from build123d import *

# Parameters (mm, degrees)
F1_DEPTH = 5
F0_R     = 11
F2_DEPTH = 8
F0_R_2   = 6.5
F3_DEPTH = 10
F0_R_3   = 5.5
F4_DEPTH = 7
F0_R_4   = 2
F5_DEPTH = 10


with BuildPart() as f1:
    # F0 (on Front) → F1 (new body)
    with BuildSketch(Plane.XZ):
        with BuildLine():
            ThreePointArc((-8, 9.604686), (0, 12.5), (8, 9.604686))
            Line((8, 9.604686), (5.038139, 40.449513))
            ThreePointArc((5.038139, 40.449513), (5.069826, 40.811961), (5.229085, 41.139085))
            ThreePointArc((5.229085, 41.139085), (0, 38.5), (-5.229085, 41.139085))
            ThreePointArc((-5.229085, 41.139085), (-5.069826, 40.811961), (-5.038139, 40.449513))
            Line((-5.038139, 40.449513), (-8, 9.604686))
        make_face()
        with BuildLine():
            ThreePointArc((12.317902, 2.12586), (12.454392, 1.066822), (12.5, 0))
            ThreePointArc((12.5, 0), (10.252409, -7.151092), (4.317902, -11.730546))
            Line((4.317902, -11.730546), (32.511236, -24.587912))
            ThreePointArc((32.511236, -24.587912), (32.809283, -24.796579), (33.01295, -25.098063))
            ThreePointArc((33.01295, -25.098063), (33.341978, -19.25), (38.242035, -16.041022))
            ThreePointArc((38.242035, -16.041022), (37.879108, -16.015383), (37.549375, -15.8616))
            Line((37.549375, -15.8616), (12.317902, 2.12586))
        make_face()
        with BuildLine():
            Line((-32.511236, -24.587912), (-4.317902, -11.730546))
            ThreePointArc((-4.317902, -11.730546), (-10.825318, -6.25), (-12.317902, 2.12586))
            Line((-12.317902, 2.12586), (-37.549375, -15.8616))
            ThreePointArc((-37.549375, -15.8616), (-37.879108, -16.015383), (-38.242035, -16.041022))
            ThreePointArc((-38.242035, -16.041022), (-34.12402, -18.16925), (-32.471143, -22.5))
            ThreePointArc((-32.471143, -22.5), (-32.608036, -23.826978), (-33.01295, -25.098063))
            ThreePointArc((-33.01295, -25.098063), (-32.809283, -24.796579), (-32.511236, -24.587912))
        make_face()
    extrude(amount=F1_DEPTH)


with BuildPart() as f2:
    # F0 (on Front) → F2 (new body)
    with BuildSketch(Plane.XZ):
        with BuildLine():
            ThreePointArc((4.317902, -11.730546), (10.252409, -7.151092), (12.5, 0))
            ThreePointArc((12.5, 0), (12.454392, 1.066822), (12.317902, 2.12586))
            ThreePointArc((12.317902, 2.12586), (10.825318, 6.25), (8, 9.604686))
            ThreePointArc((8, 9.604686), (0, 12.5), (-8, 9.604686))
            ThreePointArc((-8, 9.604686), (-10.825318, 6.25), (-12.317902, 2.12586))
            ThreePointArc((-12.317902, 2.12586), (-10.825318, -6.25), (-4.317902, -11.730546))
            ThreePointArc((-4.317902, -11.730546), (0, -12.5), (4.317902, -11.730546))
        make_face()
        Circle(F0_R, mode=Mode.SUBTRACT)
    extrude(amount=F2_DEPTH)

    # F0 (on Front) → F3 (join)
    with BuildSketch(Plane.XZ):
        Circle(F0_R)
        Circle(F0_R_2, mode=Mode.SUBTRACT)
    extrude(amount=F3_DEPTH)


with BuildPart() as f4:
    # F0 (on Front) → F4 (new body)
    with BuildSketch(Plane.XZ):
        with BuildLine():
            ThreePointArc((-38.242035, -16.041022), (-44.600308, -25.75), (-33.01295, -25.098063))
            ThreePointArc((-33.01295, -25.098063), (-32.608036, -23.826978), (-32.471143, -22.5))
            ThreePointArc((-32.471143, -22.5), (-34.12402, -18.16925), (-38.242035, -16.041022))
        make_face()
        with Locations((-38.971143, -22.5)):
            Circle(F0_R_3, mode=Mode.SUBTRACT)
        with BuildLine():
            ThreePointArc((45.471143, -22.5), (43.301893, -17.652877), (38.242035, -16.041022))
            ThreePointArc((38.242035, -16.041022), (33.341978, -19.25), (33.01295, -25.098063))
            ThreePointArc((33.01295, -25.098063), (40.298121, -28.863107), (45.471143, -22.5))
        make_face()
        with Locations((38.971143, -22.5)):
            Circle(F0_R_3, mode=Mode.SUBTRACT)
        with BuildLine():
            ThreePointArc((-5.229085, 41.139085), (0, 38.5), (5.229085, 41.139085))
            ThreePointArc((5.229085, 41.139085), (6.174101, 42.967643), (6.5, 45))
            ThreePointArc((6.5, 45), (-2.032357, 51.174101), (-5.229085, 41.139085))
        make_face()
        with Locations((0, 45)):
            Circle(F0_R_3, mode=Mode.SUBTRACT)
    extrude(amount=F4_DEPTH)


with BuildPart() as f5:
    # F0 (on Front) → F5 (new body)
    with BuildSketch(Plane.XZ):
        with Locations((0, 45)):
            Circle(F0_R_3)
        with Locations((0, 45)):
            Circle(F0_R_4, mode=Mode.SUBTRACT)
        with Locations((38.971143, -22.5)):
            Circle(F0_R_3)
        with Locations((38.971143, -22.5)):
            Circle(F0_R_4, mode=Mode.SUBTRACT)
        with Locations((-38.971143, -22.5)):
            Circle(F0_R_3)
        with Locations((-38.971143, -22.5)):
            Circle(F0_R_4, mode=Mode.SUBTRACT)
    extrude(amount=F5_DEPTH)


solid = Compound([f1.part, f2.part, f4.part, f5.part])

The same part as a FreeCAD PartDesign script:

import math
import FreeCAD as App
import Part
import Sketcher
from FreeCAD import Vector
Q = App.Units.Quantity

doc = App.newDocument("Part")
body = doc.addObject("PartDesign::Body", "Body")
body.AllowCompound = True

# Sketch on XZ plane
sketch1 = body.newObject("Sketcher::SketchObject", "Sketch")
sketch1.AttachmentSupport = (doc.getObject("XZ_Plane"), [""])
sketch1.MapMode = "FlatFace"
sketch1.addGeometry([
    Part.ArcOfCircle(Part.Circle(Vector(0, 0.000001, 0), Vector(0, 0, 1), 12.499999), math.radians(50.208176), math.radians(129.791824)),  # 0
    Part.LineSegment(Vector(8, 9.604686, 0), Vector(5.038139, 40.449513, 0)),  # 1
    Part.ArcOfCircle(Part.Circle(Vector(6.033567, 40.545097, 0), Vector(0, 0, 1), 1.000007), math.radians(143.559748), math.radians(185.484889)),  # 2
    Part.ArcOfCircle(Part.Circle(Vector(0, 44.999999, 0), Vector(0, 0, 1), 6.499999), math.radians(-143.559559), math.radians(-36.440441)),  # 3
    Part.ArcOfCircle(Part.Circle(Vector(-6.033567, 40.545097, 0), Vector(0, 0, 1), 1.000007), math.radians(-5.484889), math.radians(36.440252)),  # 4
    Part.LineSegment(Vector(-5.038139, 40.449513, 0), Vector(-8, 9.604686, 0)),  # 5
    Part.ArcOfCircle(Part.Circle(Vector(-0.000065, -0.000008, 0), Vector(0, 0, 1), 12.500065), math.radians(0.000036), math.radians(9.791804)),  # 6
    Part.ArcOfCircle(Part.Circle(Vector(0.000003, -0.000001, 0), Vector(0, 0, 1), 12.499997), math.radians(-69.79183), math.radians(0.000006)),  # 7
    Part.LineSegment(Vector(4.317902, -11.730546, 0), Vector(32.511236, -24.587912, 0)),  # 8
    Part.ArcOfCircle(Part.Circle(Vector(32.096302, -25.497768, 0), Vector(0, 0, 1), 1.000004), math.radians(23.55962), math.radians(65.484929)),  # 9
    Part.ArcOfCircle(Part.Circle(Vector(38.971142, -22.5, 0), Vector(0, 0, 1), 6.499999), math.radians(96.440444), math.radians(203.559556)),  # 10
    Part.ArcOfCircle(Part.Circle(Vector(38.129865, -15.047335, 0), Vector(0, 0, 1), 0.999998), math.radians(-125.48508), math.radians(-83.559566)),  # 11
    Part.LineSegment(Vector(37.549375, -15.8616, 0), Vector(12.317902, 2.12586, 0)),  # 12
    Part.LineSegment(Vector(-32.511236, -24.587912, 0), Vector(-4.317902, -11.730546, 0)),  # 13
    Part.ArcOfCircle(Part.Circle(Vector(-0.000003, -0.000002, 0), Vector(0, 0, 1), 12.499997), math.radians(170.20817), math.radians(249.791831)),  # 14
    Part.LineSegment(Vector(-12.317902, 2.12586, 0), Vector(-37.549375, -15.8616, 0)),  # 15
    Part.ArcOfCircle(Part.Circle(Vector(-38.129865, -15.047335, 0), Vector(0, 0, 1), 0.999998), math.radians(-96.440434), math.radians(-54.51492)),  # 16
    Part.ArcOfCircle(Part.Circle(Vector(-38.971143, -22.5, 0), Vector(0, 0, 1), 6.5), math.radians(0.000003), math.radians(83.559552)),  # 17
    Part.ArcOfCircle(Part.Circle(Vector(-38.97113, -22.500002, 0), Vector(0, 0, 1), 6.499987), math.radians(-23.559584), math.radians(0.000017)),  # 18
    Part.ArcOfCircle(Part.Circle(Vector(-32.096302, -25.497768, 0), Vector(0, 0, 1), 1.000004), math.radians(114.515071), math.radians(156.44038)),  # 19
], False)
sketch1.addConstraint([
    Sketcher.Constraint("Coincident", 0, 1, 1, 1),
    Sketcher.Constraint("Coincident", 1, 2, 2, 2),
    Sketcher.Constraint("Coincident", 2, 1, 3, 2),
    Sketcher.Constraint("Coincident", 3, 1, 4, 2),
    Sketcher.Constraint("Coincident", 4, 1, 5, 1),
    Sketcher.Constraint("Coincident", 5, 2, 0, 2),
    Sketcher.Constraint("Coincident", 6, 1, 7, 2),
    Sketcher.Constraint("Coincident", 7, 1, 8, 1),
    Sketcher.Constraint("Coincident", 8, 2, 9, 2),
    Sketcher.Constraint("Coincident", 9, 1, 10, 2),
    Sketcher.Constraint("Coincident", 10, 1, 11, 2),
    Sketcher.Constraint("Coincident", 11, 1, 12, 1),
    Sketcher.Constraint("Coincident", 12, 2, 6, 2),
    Sketcher.Constraint("Coincident", 13, 2, 14, 2),
    Sketcher.Constraint("Coincident", 14, 1, 15, 1),
    Sketcher.Constraint("Coincident", 15, 2, 16, 2),
    Sketcher.Constraint("Coincident", 16, 1, 17, 2),
    Sketcher.Constraint("Coincident", 17, 1, 18, 2),
    Sketcher.Constraint("Coincident", 18, 1, 19, 2),
    Sketcher.Constraint("Coincident", 19, 1, 13, 1),
    Sketcher.Constraint("Coincident", 0, 3, -1, 1),
    Sketcher.Constraint("Coincident", 7, 3, -1, 1),
    Sketcher.Constraint("Coincident", 14, 3, -1, 1),
    Sketcher.Constraint("PointOnObject", 3, 3, -2),
    Sketcher.Constraint("PointOnObject", 6, 1, -1),
    Sketcher.Constraint("Radius", 11, Q("0.999998 mm")),
    Sketcher.Constraint("Radius", 16, Q("0.999998 mm")),
    Sketcher.Constraint("Radius", 0, Q("12.499999 mm")),
    Sketcher.Constraint("Radius", 3, Q("6.499999 mm")),
    Sketcher.Constraint("Radius", 10, Q("6.499999 mm")),
    Sketcher.Constraint("Radius", 17, Q("6.5 mm")),
    Sketcher.Constraint("DistanceY", -1, 1, 3, 3, Q("44.999999 mm")),
    Sketcher.Constraint("DistanceX", -1, 1, 0, 1, Q("8 mm")),
    Sketcher.Constraint("DistanceX", 5, 2, -1, 1, Q("8 mm")),
    Sketcher.Constraint("DistanceY", 10, 3, -1, 1, Q("22.5 mm")),
    Sketcher.Constraint("DistanceY", 17, 3, -1, 1, Q("22.5 mm")),
    Sketcher.Constraint("DistanceY", 18, 3, -1, 1, Q("22.500002 mm")),
    Sketcher.Constraint("DistanceX", -1, 1, 6, 1, Q("12.5 mm")),
    Sketcher.Constraint("DistanceY", 17, 1, -1, 1, Q("22.5 mm")),
    Sketcher.Constraint("Radius", 2, Q("1.000007 mm")),
    Sketcher.Constraint("Radius", 4, Q("1.000007 mm")),
    Sketcher.Constraint("Radius", 6, Q("12.500065 mm")),
    Sketcher.Constraint("Radius", 9, Q("1.000004 mm")),
    Sketcher.Constraint("Radius", 14, Q("12.499997 mm")),
    Sketcher.Constraint("Radius", 18, Q("6.499987 mm")),
    Sketcher.Constraint("Radius", 19, Q("1.000004 mm")),
    Sketcher.Constraint("DistanceX", -1, 1, 9, 3, Q("32.096302 mm")),
    Sketcher.Constraint("DistanceX", 19, 3, -1, 1, Q("32.096302 mm")),
    Sketcher.Constraint("DistanceY", 11, 1, -1, 1, Q("15.8616 mm")),
    Sketcher.Constraint("DistanceY", 15, 2, -1, 1, Q("15.8616 mm")),
    Sketcher.Constraint("DistanceY", 7, 3, 2, 3, Q("40.545098 mm")),
    Sketcher.Constraint("DistanceY", 7, 3, 4, 3, Q("40.545098 mm")),
    Sketcher.Constraint("DistanceX", 16, 3, 6, 3, Q("38.1298 mm")),
    Sketcher.Constraint("DistanceY", 0, 1, 2, 1, Q("31.534399 mm")),
    Sketcher.Constraint("DistanceX", 7, 3, 7, 1, Q("4.317899 mm")),
    Sketcher.Constraint("DistanceX", 8, 2, 10, 1, Q("5.730799 mm")),
    Sketcher.Constraint("DistanceX", 0, 1, 12, 2, Q("4.317902 mm")),
    Sketcher.Constraint("DistanceX", 13, 2, 14, 3, Q("4.317899 mm")),
    Sketcher.Constraint("DistanceX", 14, 1, 14, 3, Q("12.317899 mm")),
    Sketcher.Constraint("DistanceX", 18, 3, -1, 1, Q("38.97113 mm")),
    Sketcher.Constraint("DistanceX", -1, 1, 1, 2, Q("5.038139 mm")),
    Sketcher.Constraint("DistanceX", 4, 1, -1, 1, Q("5.038139 mm")),
    Sketcher.Constraint("DistanceY", 8, 2, -1, 1, Q("24.587912 mm")),
    Sketcher.Constraint("DistanceX", -1, 1, 9, 1, Q("33.01295 mm")),
    Sketcher.Constraint("DistanceY", -1, 1, 12, 2, Q("2.12586 mm")),
    Sketcher.Constraint("DistanceY", 16, 1, -1, 1, Q("16.041022 mm")),
    Sketcher.Constraint("DistanceX", 18, 1, -1, 1, Q("33.01295 mm")),
    Sketcher.Constraint("DistanceY", 19, 1, -1, 1, Q("24.587912 mm")),
    Sketcher.Constraint("DistanceY", 9, 3, 0, 3, Q("25.497769 mm")),
    Sketcher.Constraint("DistanceX", 6, 3, 11, 3, Q("38.12993 mm")),
    Sketcher.Constraint("DistanceY", 4, 3, 3, 1, Q("0.593988 mm")),
])
pad1 = body.newObject("PartDesign::Pad", "Pad")
pad1.Profile = sketch1
pad1.Length = 5
body2 = doc.addObject("PartDesign::Body", "Body001")

# Sketch on XZ plane
sketch2 = body2.newObject("Sketcher::SketchObject", "Sketch001")
sketch2.AttachmentSupport = (doc.getObject("XZ_Plane001"), [""])
sketch2.MapMode = "FlatFace"
sketch2.addGeometry([
    Part.ArcOfCircle(Part.Circle(Vector(0.000003, -0.000001, 0), Vector(0, 0, 1), 12.499997), math.radians(-69.79183), math.radians(0.000006)),  # 0
    Part.ArcOfCircle(Part.Circle(Vector(-0.000065, -0.000008, 0), Vector(0, 0, 1), 12.500065), math.radians(0.000036), math.radians(9.791804)),  # 1
    Part.ArcOfCircle(Part.Circle(Vector(0.00001, 0.000006, 0), Vector(0, 0, 1), 12.499989), math.radians(9.7918), math.radians(50.208197)),  # 2
    Part.ArcOfCircle(Part.Circle(Vector(0, 0.000001, 0), Vector(0, 0, 1), 12.499999), math.radians(50.208176), math.radians(129.791824)),  # 3
    Part.ArcOfCircle(Part.Circle(Vector(-0.00001, 0.000006, 0), Vector(0, 0, 1), 12.499989), math.radians(129.791803), math.radians(170.2082)),  # 4
    Part.ArcOfCircle(Part.Circle(Vector(-0.000003, -0.000002, 0), Vector(0, 0, 1), 12.499997), math.radians(170.20817), math.radians(249.791831)),  # 5
    Part.ArcOfCircle(Part.Circle(Vector(0, -0.000008, 0), Vector(0, 0, 1), 12.499992), math.radians(-110.208193), math.radians(-69.791807)),  # 6
    Part.Circle(Vector(0, 0, 0), Vector(0, 0, 1), 11),  # 7
], False)
sketch2.addConstraint([
    Sketcher.Constraint("Coincident", 0, 2, 1, 1),
    Sketcher.Constraint("Coincident", 1, 2, 2, 1),
    Sketcher.Constraint("Coincident", 2, 2, 3, 1),
    Sketcher.Constraint("Coincident", 3, 2, 4, 1),
    Sketcher.Constraint("Coincident", 4, 2, 5, 1),
    Sketcher.Constraint("Coincident", 5, 2, 6, 1),
    Sketcher.Constraint("Coincident", 6, 2, 0, 1),
    Sketcher.Constraint("Coincident", 0, 3, -1, 1),
    Sketcher.Constraint("Coincident", 3, 3, -1, 1),
    Sketcher.Constraint("Coincident", 5, 3, -1, 1),
    Sketcher.Constraint("Coincident", 6, 3, -1, 1),
    Sketcher.Constraint("Coincident", 7, 3, -1, 1),
    Sketcher.Constraint("PointOnObject", 0, 2, -1),
    Sketcher.Constraint("Diameter", 7, Q("22 mm")),
    Sketcher.Constraint("Radius", 3, Q("12.499999 mm")),
    Sketcher.Constraint("DistanceX", -1, 1, 2, 2, Q("8 mm")),
    Sketcher.Constraint("DistanceX", 3, 2, -1, 1, Q("8 mm")),
    Sketcher.Constraint("DistanceX", -1, 1, 0, 2, Q("12.5 mm")),
    Sketcher.Constraint("Radius", 2, Q("12.499989 mm")),
    Sketcher.Constraint("Radius", 4, Q("12.499989 mm")),
    Sketcher.Constraint("Radius", 1, Q("12.500065 mm")),
    Sketcher.Constraint("DistanceX", -1, 1, 1, 2, Q("12.317902 mm")),
    Sketcher.Constraint("DistanceX", 5, 2, -1, 1, Q("4.317902 mm")),
    Sketcher.Constraint("DistanceX", -1, 1, 6, 2, Q("4.317902 mm")),
    Sketcher.Constraint("DistanceX", 4, 2, 5, 3, Q("12.317899 mm")),
    Sketcher.Constraint("DistanceY", -1, 1, 1, 2, Q("2.12586 mm")),
])
pad2 = body2.newObject("PartDesign::Pad", "Pad001")
pad2.Profile = sketch2
pad2.Length = 8

# Sketch on XZ plane
sketch3 = body2.newObject("Sketcher::SketchObject", "Sketch002")
sketch3.AttachmentSupport = (doc.getObject("XZ_Plane001"), [""])
sketch3.MapMode = "FlatFace"
sketch3.addGeometry([
    Part.Circle(Vector(0, 0, 0), Vector(0, 0, 1), 11),
    Part.Circle(Vector(0, 0, 0), Vector(0, 0, 1), 6),
], False)
sketch3.addConstraint([
    Sketcher.Constraint("Coincident", 0, 3, -1, 1),
    Sketcher.Constraint("Coincident", 1, 3, -1, 1),
    Sketcher.Constraint("Diameter", 0, Q("22 mm")),
    Sketcher.Constraint("Diameter", 1, Q("13 mm")),
])
pad3 = body2.newObject("PartDesign::Pad", "Pad002")
pad3.Profile = sketch3
pad3.Length = 10
body3 = doc.addObject("PartDesign::Body", "Body002")
body3.AllowCompound = True

# Sketch on XZ plane
sketch4 = body3.newObject("Sketcher::SketchObject", "Sketch003")
sketch4.AttachmentSupport = (doc.getObject("XZ_Plane002"), [""])
sketch4.MapMode = "FlatFace"
sketch4.addGeometry([
    Part.ArcOfCircle(Part.Circle(Vector(-38.971143, -22.5, 0), Vector(0, 0, 1), 6.5), math.radians(83.55955), math.radians(336.440449)),  # 0
    Part.ArcOfCircle(Part.Circle(Vector(-38.97113, -22.500002, 0), Vector(0, 0, 1), 6.499987), math.radians(-23.559584), math.radians(0.000017)),  # 1
    Part.ArcOfCircle(Part.Circle(Vector(-38.971143, -22.5, 0), Vector(0, 0, 1), 6.5), math.radians(0.000003), math.radians(83.559552)),  # 2
    Part.Circle(Vector(-38.971143, -22.5, 0), Vector(0, 0, 1), 5.5),  # 3
    Part.ArcOfCircle(Part.Circle(Vector(38.971143, -22.5, 0), Vector(0, 0, 1), 6.5), math.radians(0.000002), math.radians(96.440449)),  # 4
    Part.ArcOfCircle(Part.Circle(Vector(38.971142, -22.5, 0), Vector(0, 0, 1), 6.499999), math.radians(96.440444), math.radians(203.559556)),  # 5
    Part.ArcOfCircle(Part.Circle(Vector(38.971143, -22.5, 0), Vector(0, 0, 1), 6.5), math.radians(-156.440452), math.radians(0.000003)),  # 6
    Part.Circle(Vector(38.971143, -22.5, 0), Vector(0, 0, 1), 5.5),  # 7
    Part.ArcOfCircle(Part.Circle(Vector(0, 44.999999, 0), Vector(0, 0, 1), 6.499999), math.radians(-143.559559), math.radians(-36.440441)),  # 8
    Part.ArcOfCircle(Part.Circle(Vector(0.000001, 45, 0), Vector(0, 0, 1), 6.499999), math.radians(-36.440458), math.radians(-0.000002)),  # 9
    Part.ArcOfCircle(Part.Circle(Vector(0, 45, 0), Vector(0, 0, 1), 6.5), math.radians(-0.000001), math.radians(216.440448)),  # 10
    Part.Circle(Vector(0, 45, 0), Vector(0, 0, 1), 5.5),  # 11
], False)
sketch4.addConstraint([
    Sketcher.Constraint("Coincident", 0, 2, 1, 1),
    Sketcher.Constraint("Coincident", 1, 2, 2, 1),
    Sketcher.Constraint("Coincident", 2, 2, 0, 1),
    Sketcher.Constraint("Coincident", 4, 2, 5, 1),
    Sketcher.Constraint("Coincident", 5, 2, 6, 1),
    Sketcher.Constraint("Coincident", 6, 2, 4, 1),
    Sketcher.Constraint("Coincident", 8, 2, 9, 1),
    Sketcher.Constraint("Coincident", 9, 2, 10, 1),
    Sketcher.Constraint("Coincident", 10, 2, 8, 1),
    Sketcher.Constraint("Coincident", 2, 3, 0, 3),
    Sketcher.Constraint("Coincident", 3, 3, 0, 3),
    Sketcher.Constraint("Coincident", 5, 3, 4, 3),
    Sketcher.Constraint("Coincident", 7, 3, 4, 3),
    Sketcher.Constraint("Coincident", 9, 3, 8, 3),
    Sketcher.Constraint("Coincident", 11, 3, 8, 3),
    Sketcher.Constraint("PointOnObject", 8, 3, -2),
    Sketcher.Constraint("PointOnObject", 10, 3, -2),
    Sketcher.Constraint("Diameter", 3, Q("11 mm")),
    Sketcher.Constraint("Diameter", 7, Q("11 mm")),
    Sketcher.Constraint("Diameter", 11, Q("11 mm")),
    Sketcher.Constraint("Radius", 0, Q("6.5 mm")),
    Sketcher.Constraint("Radius", 4, Q("6.5 mm")),
    Sketcher.Constraint("Radius", 6, Q("6.5 mm")),
    Sketcher.Constraint("Radius", 8, Q("6.499999 mm")),
    Sketcher.Constraint("DistanceY", -1, 1, 8, 3, Q("44.999999 mm")),
    Sketcher.Constraint("DistanceY", -1, 1, 9, 2, Q("45 mm")),
    Sketcher.Constraint("DistanceY", 0, 3, -1, 1, Q("22.5 mm")),
    Sketcher.Constraint("DistanceY", 1, 3, -1, 1, Q("22.500002 mm")),
    Sketcher.Constraint("DistanceY", 4, 3, -1, 1, Q("22.5 mm")),
    Sketcher.Constraint("DistanceY", 1, 2, -1, 1, Q("22.5 mm")),
    Sketcher.Constraint("DistanceY", 6, 2, -1, 1, Q("22.5 mm")),
    Sketcher.Constraint("DistanceX", 1, 3, -1, 1, Q("38.97113 mm")),
    Sketcher.Constraint("DistanceX", 0, 2, -1, 1, Q("33.01295 mm")),
    Sketcher.Constraint("DistanceX", -1, 1, 5, 2, Q("33.01295 mm")),
    Sketcher.Constraint("DistanceX", 1, 3, 5, 3, Q("77.942272 mm")),
    Sketcher.Constraint("DistanceX", 0, 3, 2, 2, Q("0.729108 mm")),
    Sketcher.Constraint("DistanceX", 4, 2, 4, 3, Q("0.729108 mm")),
    Sketcher.Constraint("DistanceX", 8, 2, 4, 2, Q("33.01295 mm")),
    Sketcher.Constraint("DistanceX", 10, 2, 8, 2, Q("10.45817 mm")),
])
pad4 = body3.newObject("PartDesign::Pad", "Pad003")
pad4.Profile = sketch4
pad4.Length = 7
body4 = doc.addObject("PartDesign::Body", "Body003")
body4.AllowCompound = True

# Sketch on XZ plane
sketch5 = body4.newObject("Sketcher::SketchObject", "Sketch004")
sketch5.AttachmentSupport = (doc.getObject("XZ_Plane003"), [""])
sketch5.MapMode = "FlatFace"
sketch5.addGeometry([
    Part.Circle(Vector(0, 45, 0), Vector(0, 0, 1), 5.5),  # 0
    Part.Circle(Vector(0, 45, 0), Vector(0, 0, 1), 2),  # 1
    Part.Circle(Vector(39, -22.5, 0), Vector(0, 0, 1), 5.5),  # 2
    Part.Circle(Vector(39, -22.5, 0), Vector(0, 0, 1), 2),  # 3
    Part.Circle(Vector(-39, -22.5, 0), Vector(0, 0, 1), 5.5),  # 4
    Part.Circle(Vector(-39, -22.5, 0), Vector(0, 0, 1), 2),  # 5
], False)
sketch5.addConstraint([
    Sketcher.Constraint("Coincident", 1, 3, 0, 3),
    Sketcher.Constraint("Coincident", 3, 3, 2, 3),
    Sketcher.Constraint("Coincident", 5, 3, 4, 3),
    Sketcher.Constraint("Equal", 0, 2),
    Sketcher.Constraint("Equal", 1, 3),
    Sketcher.Constraint("Equal", 2, 4),
    Sketcher.Constraint("Equal", 3, 5),
    Sketcher.Constraint("Symmetric", 2, 3, 4, 3, -2),
    Sketcher.Constraint("PointOnObject", 0, 3, -2),
    Sketcher.Constraint("Diameter", 0, Q("11 mm")),
    Sketcher.Constraint("Diameter", 1, Q("4 mm")),
    Sketcher.Constraint("DistanceY", -1, 1, 0, 3, Q("45 mm")),
    Sketcher.Constraint("DistanceY", 2, 3, -1, 1, Q("22.5 mm")),
    Sketcher.Constraint("DistanceX", -1, 1, 2, 3, Q("38.971143 mm")),
])
pad5 = body4.newObject("PartDesign::Pad", "Pad004")
pad5.Profile = sketch5
pad5.Length = 10

doc.recompute()
